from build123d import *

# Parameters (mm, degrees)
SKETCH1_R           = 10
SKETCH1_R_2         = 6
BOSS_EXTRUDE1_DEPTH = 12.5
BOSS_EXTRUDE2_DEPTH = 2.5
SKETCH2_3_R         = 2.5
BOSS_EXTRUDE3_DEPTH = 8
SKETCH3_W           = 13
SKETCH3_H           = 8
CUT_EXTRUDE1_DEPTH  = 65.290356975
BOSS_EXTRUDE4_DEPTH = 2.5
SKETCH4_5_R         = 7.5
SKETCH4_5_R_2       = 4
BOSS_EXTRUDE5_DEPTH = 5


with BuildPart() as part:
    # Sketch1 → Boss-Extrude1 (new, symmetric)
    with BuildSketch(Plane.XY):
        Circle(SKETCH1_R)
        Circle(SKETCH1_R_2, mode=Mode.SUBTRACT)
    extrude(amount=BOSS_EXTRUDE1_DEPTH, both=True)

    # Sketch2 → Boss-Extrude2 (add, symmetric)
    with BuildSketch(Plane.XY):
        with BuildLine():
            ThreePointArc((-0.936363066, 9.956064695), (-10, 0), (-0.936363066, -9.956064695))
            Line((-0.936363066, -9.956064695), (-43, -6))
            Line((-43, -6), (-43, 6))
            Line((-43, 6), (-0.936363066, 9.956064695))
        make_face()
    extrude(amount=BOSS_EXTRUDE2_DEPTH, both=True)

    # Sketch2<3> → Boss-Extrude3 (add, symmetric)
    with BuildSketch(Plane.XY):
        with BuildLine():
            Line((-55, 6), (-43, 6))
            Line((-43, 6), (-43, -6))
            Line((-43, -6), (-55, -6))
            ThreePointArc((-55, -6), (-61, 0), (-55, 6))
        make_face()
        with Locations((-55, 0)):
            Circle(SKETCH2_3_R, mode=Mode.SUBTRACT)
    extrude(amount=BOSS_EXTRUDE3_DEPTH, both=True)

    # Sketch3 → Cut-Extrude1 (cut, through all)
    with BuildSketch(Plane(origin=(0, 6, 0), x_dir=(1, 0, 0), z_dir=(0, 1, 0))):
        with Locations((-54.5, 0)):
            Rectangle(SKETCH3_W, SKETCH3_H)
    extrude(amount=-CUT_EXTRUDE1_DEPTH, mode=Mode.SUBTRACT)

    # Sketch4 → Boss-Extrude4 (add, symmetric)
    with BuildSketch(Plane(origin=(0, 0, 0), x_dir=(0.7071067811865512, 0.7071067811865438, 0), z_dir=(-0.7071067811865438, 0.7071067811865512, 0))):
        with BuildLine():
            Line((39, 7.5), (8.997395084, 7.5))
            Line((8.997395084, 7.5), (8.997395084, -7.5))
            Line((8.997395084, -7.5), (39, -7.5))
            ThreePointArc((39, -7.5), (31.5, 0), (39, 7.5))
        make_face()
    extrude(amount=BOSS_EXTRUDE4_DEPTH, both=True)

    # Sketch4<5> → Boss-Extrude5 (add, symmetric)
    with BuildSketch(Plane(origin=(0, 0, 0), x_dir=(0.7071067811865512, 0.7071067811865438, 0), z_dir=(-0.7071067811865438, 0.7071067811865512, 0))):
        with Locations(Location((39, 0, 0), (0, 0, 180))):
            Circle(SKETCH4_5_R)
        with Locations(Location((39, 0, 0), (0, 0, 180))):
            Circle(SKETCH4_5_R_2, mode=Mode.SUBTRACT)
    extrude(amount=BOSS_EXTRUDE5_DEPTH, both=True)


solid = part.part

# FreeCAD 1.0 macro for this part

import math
import FreeCAD as App
import Part
import Sketcher
from FreeCAD import Vector

doc = App.newDocument("Part")
body = doc.addObject("PartDesign::Body", "Body")

# Sketch on XY plane
sketch1 = body.newObject("Sketcher::SketchObject", "Sketch")
sketch1.AttachmentSupport = (doc.getObject("XY_Plane"), [""])
sketch1.MapMode = "FlatFace"
sketch1.addGeometry(Part.Circle(Vector(0, 0, 0), Vector(0, 0, 1), 10), False)
sketch1.addGeometry(Part.Circle(Vector(0, 0, 0), Vector(0, 0, 1), 6), False)
sketch1.addConstraint(Sketcher.Constraint("Coincident", 0, 3, -1, 1))
sketch1.addConstraint(Sketcher.Constraint("Coincident", 1, 3, -1, 1))
sketch1.addConstraint(Sketcher.Constraint("Diameter", 0, 20.0))
sketch1.addConstraint(Sketcher.Constraint("Diameter", 1, 12.0))
pad1 = body.newObject("PartDesign::Pad", "Pad")
pad1.Profile = sketch1
pad1.Length = 25
pad1.Midplane = True

# Sketch on XY plane
sketch2 = body.newObject("Sketcher::SketchObject", "Sketch001")
sketch2.AttachmentSupport = (doc.getObject("XY_Plane"), [""])
sketch2.MapMode = "FlatFace"
sketch2.addGeometry(Part.ArcOfCircle(Part.Circle(Vector(0, 0, 0), Vector(0, 0, 1), 10), math.radians(95.372836), math.radians(264.627164)), False)
sketch2.addGeometry(Part.LineSegment(Vector(-0.936363, 9.956065, 0), Vector(-43, 6, 0)), False)
sketch2.addGeometry(Part.LineSegment(Vector(-43, 6, 0), Vector(-43, -6, 0)), False)
sketch2.addGeometry(Part.LineSegment(Vector(-43, -6, 0), Vector(-0.936363, -9.956065, 0)), False)
sketch2.addConstraint(Sketcher.Constraint("Tangent", 0, 1, 1, 1))
sketch2.addConstraint(Sketcher.Constraint("Coincident", 1, 2, 2, 1))
sketch2.addConstraint(Sketcher.Constraint("Coincident", 2, 2, 3, 1))
sketch2.addConstraint(Sketcher.Constraint("Tangent", 3, 2, 0, 2))
sketch2.addConstraint(Sketcher.Constraint("Vertical", 2))
sketch2.addConstraint(Sketcher.Constraint("Coincident", 0, 3, -1, 1))
sketch2.addConstraint(Sketcher.Constraint("Vertical", 0, 1, 3, 2))
sketch2.addConstraint(Sketcher.Constraint("Radius", 0, 10.0))
sketch2.addConstraint(Sketcher.Constraint("DistanceY", 2, 2, 2, 1, 12.0))
sketch2.addConstraint(Sketcher.Constraint("DistanceX", 1, 2, -1, 1, 43.0))
pad2 = body.newObject("PartDesign::Pad", "Pad001")
pad2.Profile = sketch2
pad2.Length = 5
pad2.Midplane = True

# Sketch on XY plane
sketch3 = body.newObject("Sketcher::SketchObject", "Sketch002")
sketch3.AttachmentSupport = (doc.getObject("XY_Plane"), [""])
sketch3.MapMode = "FlatFace"
sketch3.addGeometry(Part.LineSegment(Vector(-43, 6, 0), Vector(-55, 6, 0)), False)
sketch3.addGeometry(Part.ArcOfCircle(Part.Circle(Vector(-55, 0, 0), Vector(0, 0, 1), 6), math.radians(90), math.radians(270)), False)
sketch3.addGeometry(Part.LineSegment(Vector(-55, -6, 0), Vector(-43, -6, 0)), False)
sketch3.addGeometry(Part.LineSegment(Vector(-43, -6, 0), Vector(-43, 6, 0)), False)
sketch3.addGeometry(Part.Circle(Vector(-55, 0, 0), Vector(0, 0, 1), 2.5), False)
sketch3.addConstraint(Sketcher.Constraint("Tangent", 0, 2, 1, 1))
sketch3.addConstraint(Sketcher.Constraint("Tangent", 1, 2, 2, 1))
sketch3.addConstraint(Sketcher.Constraint("Coincident", 2, 2, 3, 1))
sketch3.addConstraint(Sketcher.Constraint("Coincident", 3, 2, 0, 1))
sketch3.addConstraint(Sketcher.Constraint("Horizontal", 0))
sketch3.addConstraint(Sketcher.Constraint("Horizontal", 2))
sketch3.addConstraint(Sketcher.Constraint("Vertical", 3))
sketch3.addConstraint(Sketcher.Constraint("Coincident", 4, 3, 1, 3))
sketch3.addConstraint(Sketcher.Constraint("PointOnObject", 1, 3, -1))
sketch3.addConstraint(Sketcher.Constraint("Equal", 2, 3))
sketch3.addConstraint(Sketcher.Constraint("Diameter", 4, 5.0))
sketch3.addConstraint(Sketcher.Constraint("Radius", 1, 6.0))
sketch3.addConstraint(Sketcher.Constraint("DistanceX", 1, 3, -1, 1, 55.0))
pad3 = body.newObject("PartDesign::Pad", "Pad002")
pad3.Profile = sketch3
pad3.Length = 16
pad3.Midplane = True

# Sketch on XZ plane
sketch4 = body.newObject("Sketcher::SketchObject", "Sketch003")
sketch4.AttachmentSupport = (doc.getObject("XZ_Plane"), [""])
sketch4.MapMode = "FlatFace"
sketch4.AttachmentOffset = App.Placement(Vector(0, 0, -6), App.Rotation())
sketch4.addGeometry(Part.LineSegment(Vector(-61, -4, 0), Vector(-61, 4, 0)), False)
sketch4.addGeometry(Part.LineSegment(Vector(-61, 4, 0), Vector(-48, 4, 0)), False)
sketch4.addGeometry(Part.LineSegment(Vector(-48, 4, 0), Vector(-48, -4, 0)), False)
sketch4.addGeometry(Part.LineSegment(Vector(-48, -4, 0), Vector(-61, -4, 0)), False)
sketch4.addConstraint(Sketcher.Constraint("Coincident", 0, 2, 1, 1))
sketch4.addConstraint(Sketcher.Constraint("Coincident", 1, 2, 2, 1))
sketch4.addConstraint(Sketcher.Constraint("Coincident", 2, 2, 3, 1))
sketch4.addConstraint(Sketcher.Constraint("Coincident", 3, 2, 0, 1))
sketch4.addConstraint(Sketcher.Constraint("Vertical", 0))
sketch4.addConstraint(Sketcher.Constraint("Horizontal", 1))
sketch4.addConstraint(Sketcher.Constraint("Vertical", 2))
sketch4.addConstraint(Sketcher.Constraint("Horizontal", 3))
sketch4.addConstraint(Sketcher.Constraint("DistanceX", 1, 1, 1, 2, 13.0))
sketch4.addConstraint(Sketcher.Constraint("DistanceY", 0, 1, 0, 2, 8.0))
sketch4.addConstraint(Sketcher.Constraint("DistanceX", 0, 2, -1, 1, 61.0))
sketch4.addConstraint(Sketcher.Constraint("DistanceY", -1, 1, 0, 2, 4.0))
pocket1 = body.newObject("PartDesign::Pocket", "Pocket")
pocket1.Profile = sketch4
pocket1.Type = "ThroughAll"
pocket1.Reversed = True

# Sketch on an angled plane
sketch5 = body.newObject("Sketcher::SketchObject", "Sketch004")
sketch5.Placement = App.Placement(Vector(0, 0, 0), App.Rotation(Vector(0.707106781, 0.707106781, 0), Vector(0, 0, -0.999999999), Vector(-0.707106781, 0.707106781, 0), "ZXY"))
sketch5.addGeometry(Part.LineSegment(Vector(39, 7.5, 0), Vector(8.997395, 7.5, 0)), False)
sketch5.addGeometry(Part.LineSegment(Vector(8.997395, 7.5, 0), Vector(8.997395, -7.5, 0)), False)
sketch5.addGeometry(Part.LineSegment(Vector(8.997395, -7.5, 0), Vector(39, -7.5, 0)), False)
sketch5.addGeometry(Part.ArcOfCircle(Part.Circle(Vector(39, 0, 0), Vector(0, 0, 1), 7.5), math.radians(90), math.radians(270)), False)
sketch5.addConstraint(Sketcher.Constraint("Coincident", 0, 2, 1, 1))
sketch5.addConstraint(Sketcher.Constraint("Coincident", 1, 2, 2, 1))
sketch5.addConstraint(Sketcher.Constraint("Tangent", 2, 2, 3, 2))
sketch5.addConstraint(Sketcher.Constraint("Tangent", 3, 1, 0, 1))
sketch5.addConstraint(Sketcher.Constraint("Horizontal", 0))
sketch5.addConstraint(Sketcher.Constraint("Vertical", 1))
sketch5.addConstraint(Sketcher.Constraint("Horizontal", 2))
sketch5.addConstraint(Sketcher.Constraint("PointOnObject", 3, 3, -1))
sketch5.addConstraint(Sketcher.Constraint("Radius", 3, 7.5))
sketch5.addConstraint(Sketcher.Constraint("DistanceX", -1, 1, 3, 3, 39.0))
sketch5.addConstraint(Sketcher.Constraint("DistanceX", 0, 2, 0, 1, 30.002605))
pad4 = body.newObject("PartDesign::Pad", "Pad003")
pad4.Profile = sketch5
pad4.Length = 5
pad4.Midplane = True

# Sketch on an angled plane
sketch6 = body.newObject("Sketcher::SketchObject", "Sketch005")
sketch6.Placement = App.Placement(Vector(0, 0, 0), App.Rotation(Vector(0.707106781, 0.707106781, 0), Vector(0, 0, -0.999999999), Vector(-0.707106781, 0.707106781, 0), "ZXY"))
sketch6.addGeometry(Part.Circle(Vector(39, 0, 0), Vector(0, 0, 1), 7.5), False)
sketch6.addGeometry(Part.Circle(Vector(39, 0, 0), Vector(0, 0, 1), 4), False)
sketch6.addConstraint(Sketcher.Constraint("Coincident", 1, 3, 0, 3))
sketch6.addConstraint(Sketcher.Constraint("PointOnObject", 0, 3, -1))
sketch6.addConstraint(Sketcher.Constraint("Diameter", 0, 15.0))
sketch6.addConstraint(Sketcher.Constraint("Diameter", 1, 8.0))
sketch6.addConstraint(Sketcher.Constraint("DistanceX", -1, 1, 0, 3, 39.0))
pad5 = body.newObject("PartDesign::Pad", "Pad004")
pad5.Profile = sketch6
pad5.Length = 10
pad5.Midplane = True

doc.recompute()
